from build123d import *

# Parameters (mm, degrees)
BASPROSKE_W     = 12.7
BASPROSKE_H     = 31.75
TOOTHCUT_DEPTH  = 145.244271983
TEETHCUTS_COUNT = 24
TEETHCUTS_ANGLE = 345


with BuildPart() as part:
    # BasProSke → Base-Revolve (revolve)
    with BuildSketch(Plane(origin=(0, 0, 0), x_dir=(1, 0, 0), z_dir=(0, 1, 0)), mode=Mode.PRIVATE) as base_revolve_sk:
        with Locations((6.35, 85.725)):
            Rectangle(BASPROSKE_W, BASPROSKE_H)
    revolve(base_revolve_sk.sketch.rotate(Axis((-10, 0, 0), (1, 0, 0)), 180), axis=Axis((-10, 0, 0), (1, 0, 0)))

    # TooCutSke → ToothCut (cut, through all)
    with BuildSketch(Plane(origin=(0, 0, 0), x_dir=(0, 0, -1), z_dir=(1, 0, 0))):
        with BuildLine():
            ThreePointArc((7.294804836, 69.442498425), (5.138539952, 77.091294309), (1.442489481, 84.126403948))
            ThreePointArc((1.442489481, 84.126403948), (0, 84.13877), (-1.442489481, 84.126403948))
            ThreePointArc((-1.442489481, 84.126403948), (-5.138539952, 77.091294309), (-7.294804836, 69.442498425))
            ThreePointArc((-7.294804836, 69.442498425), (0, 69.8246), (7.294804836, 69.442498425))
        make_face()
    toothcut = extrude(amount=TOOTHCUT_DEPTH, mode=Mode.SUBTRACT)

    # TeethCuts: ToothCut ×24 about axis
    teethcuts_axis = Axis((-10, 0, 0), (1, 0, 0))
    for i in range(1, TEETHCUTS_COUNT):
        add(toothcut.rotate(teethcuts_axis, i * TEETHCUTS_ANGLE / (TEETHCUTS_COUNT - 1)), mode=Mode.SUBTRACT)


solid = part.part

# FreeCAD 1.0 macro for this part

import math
import FreeCAD as App
import Part
import Sketcher
Q = App.Units.Quantity


def add_polygon(sketch, points):
    """Adds a closed chain of lines whose ends are joined by coincident constraints."""
    first, n = sketch.GeometryCount, len(points)
    for a, b in zip(points, points[1:] + points[:1]):
        sketch.addGeometry(Part.LineSegment(App.Vector(*a, 0), App.Vector(*b, 0)), False)
    for i in range(n):
        sketch.addConstraint(Sketcher.Constraint("Coincident", first + i, 2, first + (i + 1) % n, 1))

doc = App.newDocument("Part")
body = doc.addObject("PartDesign::Body", "Body")

# Sketch on XZ plane
sketch1 = doc.addObject("Sketcher::SketchObject", "Sketch")
body.addObject(sketch1)
sketch1.AttachmentSupport = (doc.XZ_Plane, [""])
sketch1.MapMode = "FlatFace"
add_polygon(sketch1, [(0, -101.6), (0, -69.85), (12.7, -69.85), (12.7, -101.6)])  # lines 0-3
sketch1.addConstraint([
    Sketcher.Constraint("Vertical", 0),
    Sketcher.Constraint("Horizontal", 1),
    Sketcher.Constraint("Vertical", 2),
    Sketcher.Constraint("Horizontal", 3),
    Sketcher.Constraint("PointOnObject", 0, 2, -2),
    Sketcher.Constraint("DistanceX", 1, 1, 1, 2, Q("0.5 in")),
    Sketcher.Constraint("DistanceY", 2, 2, -1, 1, Q("4 in")),
    Sketcher.Constraint("DistanceY", 0, 1, 0, 2, Q("1.25 in")),
])
revolution = doc.addObject("PartDesign::Revolution", "Revolution")
body.addObject(revolution)
revolution.Profile = sketch1
revolution.ReferenceAxis = (sketch1, ["H_Axis"])
revolution.Angle = 360

# Sketch on YZ plane
sketch2 = doc.addObject("Sketcher::SketchObject", "Sketch001")
body.addObject(sketch2)
sketch2.AttachmentSupport = (doc.YZ_Plane, [""])
sketch2.MapMode = "FlatFace"
sketch2.addGeometry([
    Part.ArcOfCircle(Part.Circle(App.Vector(62.985468, 30.254053, 0), App.Vector(0, 0, 1), 38.1), math.radians(-80.242654), math.radians(-56.297536)),
    Part.ArcOfCircle(Part.Circle(App.Vector(0, 0, 0), App.Vector(0, 0, 1), 84.13877), math.radians(-0.982337), math.radians(0.982337)),
    Part.ArcOfCircle(Part.Circle(App.Vector(62.985468, -30.254053, 0), App.Vector(0, 0, 1), 38.1), math.radians(56.297536), math.radians(80.242654)),
    Part.ArcOfCircle(Part.Circle(App.Vector(0, 0, 0), App.Vector(0, 0, 1), 69.8246), math.radians(-5.996821), math.radians(5.996821)),
], False)
sketch2.addConstraint([
    Sketcher.Constraint("Coincident", 0, 2, 1, 1),
    Sketcher.Constraint("Coincident", 1, 2, 2, 1),
    Sketcher.Constraint("Coincident", 2, 2, 3, 2),
    Sketcher.Constraint("Coincident", 3, 1, 0, 1),
    Sketcher.Constraint("Coincident", 1, 3, -1, 1),
    Sketcher.Constraint("Coincident", 3, 3, -1, 1),
    Sketcher.Constraint("Equal", 0, 2),
    Sketcher.Constraint("Symmetric", 0, 3, 2, 3, -1),
    Sketcher.Constraint("Radius", 0, Q("1.5 in")),
    Sketcher.Constraint("Radius", 3, Q("2.749 in")),
    Sketcher.Constraint("Radius", 1, Q("84.13877 mm")),
    Sketcher.Constraint("DistanceX", -1, 1, 2, 2, Q("69.442498 mm")),
    Sketcher.Constraint("DistanceX", -1, 1, 0, 3, Q("62.985468 mm")),
])
pocket1 = doc.addObject("PartDesign::Pocket", "Pocket")
body.addObject(pocket1)
pocket1.Profile = sketch2
pocket1.Type = "ThroughAll"
pocket1.Reversed = True
doc.recompute()

polarpattern = doc.addObject("PartDesign::PolarPattern", "PolarPattern")
body.addObject(polarpattern)
polarpattern.Originals = [pocket1]
polarpattern.Axis = (doc.X_Axis, [""])
polarpattern.Angle = 360
polarpattern.Occurrences = 24
body.Tip = polarpattern

doc.recompute()
